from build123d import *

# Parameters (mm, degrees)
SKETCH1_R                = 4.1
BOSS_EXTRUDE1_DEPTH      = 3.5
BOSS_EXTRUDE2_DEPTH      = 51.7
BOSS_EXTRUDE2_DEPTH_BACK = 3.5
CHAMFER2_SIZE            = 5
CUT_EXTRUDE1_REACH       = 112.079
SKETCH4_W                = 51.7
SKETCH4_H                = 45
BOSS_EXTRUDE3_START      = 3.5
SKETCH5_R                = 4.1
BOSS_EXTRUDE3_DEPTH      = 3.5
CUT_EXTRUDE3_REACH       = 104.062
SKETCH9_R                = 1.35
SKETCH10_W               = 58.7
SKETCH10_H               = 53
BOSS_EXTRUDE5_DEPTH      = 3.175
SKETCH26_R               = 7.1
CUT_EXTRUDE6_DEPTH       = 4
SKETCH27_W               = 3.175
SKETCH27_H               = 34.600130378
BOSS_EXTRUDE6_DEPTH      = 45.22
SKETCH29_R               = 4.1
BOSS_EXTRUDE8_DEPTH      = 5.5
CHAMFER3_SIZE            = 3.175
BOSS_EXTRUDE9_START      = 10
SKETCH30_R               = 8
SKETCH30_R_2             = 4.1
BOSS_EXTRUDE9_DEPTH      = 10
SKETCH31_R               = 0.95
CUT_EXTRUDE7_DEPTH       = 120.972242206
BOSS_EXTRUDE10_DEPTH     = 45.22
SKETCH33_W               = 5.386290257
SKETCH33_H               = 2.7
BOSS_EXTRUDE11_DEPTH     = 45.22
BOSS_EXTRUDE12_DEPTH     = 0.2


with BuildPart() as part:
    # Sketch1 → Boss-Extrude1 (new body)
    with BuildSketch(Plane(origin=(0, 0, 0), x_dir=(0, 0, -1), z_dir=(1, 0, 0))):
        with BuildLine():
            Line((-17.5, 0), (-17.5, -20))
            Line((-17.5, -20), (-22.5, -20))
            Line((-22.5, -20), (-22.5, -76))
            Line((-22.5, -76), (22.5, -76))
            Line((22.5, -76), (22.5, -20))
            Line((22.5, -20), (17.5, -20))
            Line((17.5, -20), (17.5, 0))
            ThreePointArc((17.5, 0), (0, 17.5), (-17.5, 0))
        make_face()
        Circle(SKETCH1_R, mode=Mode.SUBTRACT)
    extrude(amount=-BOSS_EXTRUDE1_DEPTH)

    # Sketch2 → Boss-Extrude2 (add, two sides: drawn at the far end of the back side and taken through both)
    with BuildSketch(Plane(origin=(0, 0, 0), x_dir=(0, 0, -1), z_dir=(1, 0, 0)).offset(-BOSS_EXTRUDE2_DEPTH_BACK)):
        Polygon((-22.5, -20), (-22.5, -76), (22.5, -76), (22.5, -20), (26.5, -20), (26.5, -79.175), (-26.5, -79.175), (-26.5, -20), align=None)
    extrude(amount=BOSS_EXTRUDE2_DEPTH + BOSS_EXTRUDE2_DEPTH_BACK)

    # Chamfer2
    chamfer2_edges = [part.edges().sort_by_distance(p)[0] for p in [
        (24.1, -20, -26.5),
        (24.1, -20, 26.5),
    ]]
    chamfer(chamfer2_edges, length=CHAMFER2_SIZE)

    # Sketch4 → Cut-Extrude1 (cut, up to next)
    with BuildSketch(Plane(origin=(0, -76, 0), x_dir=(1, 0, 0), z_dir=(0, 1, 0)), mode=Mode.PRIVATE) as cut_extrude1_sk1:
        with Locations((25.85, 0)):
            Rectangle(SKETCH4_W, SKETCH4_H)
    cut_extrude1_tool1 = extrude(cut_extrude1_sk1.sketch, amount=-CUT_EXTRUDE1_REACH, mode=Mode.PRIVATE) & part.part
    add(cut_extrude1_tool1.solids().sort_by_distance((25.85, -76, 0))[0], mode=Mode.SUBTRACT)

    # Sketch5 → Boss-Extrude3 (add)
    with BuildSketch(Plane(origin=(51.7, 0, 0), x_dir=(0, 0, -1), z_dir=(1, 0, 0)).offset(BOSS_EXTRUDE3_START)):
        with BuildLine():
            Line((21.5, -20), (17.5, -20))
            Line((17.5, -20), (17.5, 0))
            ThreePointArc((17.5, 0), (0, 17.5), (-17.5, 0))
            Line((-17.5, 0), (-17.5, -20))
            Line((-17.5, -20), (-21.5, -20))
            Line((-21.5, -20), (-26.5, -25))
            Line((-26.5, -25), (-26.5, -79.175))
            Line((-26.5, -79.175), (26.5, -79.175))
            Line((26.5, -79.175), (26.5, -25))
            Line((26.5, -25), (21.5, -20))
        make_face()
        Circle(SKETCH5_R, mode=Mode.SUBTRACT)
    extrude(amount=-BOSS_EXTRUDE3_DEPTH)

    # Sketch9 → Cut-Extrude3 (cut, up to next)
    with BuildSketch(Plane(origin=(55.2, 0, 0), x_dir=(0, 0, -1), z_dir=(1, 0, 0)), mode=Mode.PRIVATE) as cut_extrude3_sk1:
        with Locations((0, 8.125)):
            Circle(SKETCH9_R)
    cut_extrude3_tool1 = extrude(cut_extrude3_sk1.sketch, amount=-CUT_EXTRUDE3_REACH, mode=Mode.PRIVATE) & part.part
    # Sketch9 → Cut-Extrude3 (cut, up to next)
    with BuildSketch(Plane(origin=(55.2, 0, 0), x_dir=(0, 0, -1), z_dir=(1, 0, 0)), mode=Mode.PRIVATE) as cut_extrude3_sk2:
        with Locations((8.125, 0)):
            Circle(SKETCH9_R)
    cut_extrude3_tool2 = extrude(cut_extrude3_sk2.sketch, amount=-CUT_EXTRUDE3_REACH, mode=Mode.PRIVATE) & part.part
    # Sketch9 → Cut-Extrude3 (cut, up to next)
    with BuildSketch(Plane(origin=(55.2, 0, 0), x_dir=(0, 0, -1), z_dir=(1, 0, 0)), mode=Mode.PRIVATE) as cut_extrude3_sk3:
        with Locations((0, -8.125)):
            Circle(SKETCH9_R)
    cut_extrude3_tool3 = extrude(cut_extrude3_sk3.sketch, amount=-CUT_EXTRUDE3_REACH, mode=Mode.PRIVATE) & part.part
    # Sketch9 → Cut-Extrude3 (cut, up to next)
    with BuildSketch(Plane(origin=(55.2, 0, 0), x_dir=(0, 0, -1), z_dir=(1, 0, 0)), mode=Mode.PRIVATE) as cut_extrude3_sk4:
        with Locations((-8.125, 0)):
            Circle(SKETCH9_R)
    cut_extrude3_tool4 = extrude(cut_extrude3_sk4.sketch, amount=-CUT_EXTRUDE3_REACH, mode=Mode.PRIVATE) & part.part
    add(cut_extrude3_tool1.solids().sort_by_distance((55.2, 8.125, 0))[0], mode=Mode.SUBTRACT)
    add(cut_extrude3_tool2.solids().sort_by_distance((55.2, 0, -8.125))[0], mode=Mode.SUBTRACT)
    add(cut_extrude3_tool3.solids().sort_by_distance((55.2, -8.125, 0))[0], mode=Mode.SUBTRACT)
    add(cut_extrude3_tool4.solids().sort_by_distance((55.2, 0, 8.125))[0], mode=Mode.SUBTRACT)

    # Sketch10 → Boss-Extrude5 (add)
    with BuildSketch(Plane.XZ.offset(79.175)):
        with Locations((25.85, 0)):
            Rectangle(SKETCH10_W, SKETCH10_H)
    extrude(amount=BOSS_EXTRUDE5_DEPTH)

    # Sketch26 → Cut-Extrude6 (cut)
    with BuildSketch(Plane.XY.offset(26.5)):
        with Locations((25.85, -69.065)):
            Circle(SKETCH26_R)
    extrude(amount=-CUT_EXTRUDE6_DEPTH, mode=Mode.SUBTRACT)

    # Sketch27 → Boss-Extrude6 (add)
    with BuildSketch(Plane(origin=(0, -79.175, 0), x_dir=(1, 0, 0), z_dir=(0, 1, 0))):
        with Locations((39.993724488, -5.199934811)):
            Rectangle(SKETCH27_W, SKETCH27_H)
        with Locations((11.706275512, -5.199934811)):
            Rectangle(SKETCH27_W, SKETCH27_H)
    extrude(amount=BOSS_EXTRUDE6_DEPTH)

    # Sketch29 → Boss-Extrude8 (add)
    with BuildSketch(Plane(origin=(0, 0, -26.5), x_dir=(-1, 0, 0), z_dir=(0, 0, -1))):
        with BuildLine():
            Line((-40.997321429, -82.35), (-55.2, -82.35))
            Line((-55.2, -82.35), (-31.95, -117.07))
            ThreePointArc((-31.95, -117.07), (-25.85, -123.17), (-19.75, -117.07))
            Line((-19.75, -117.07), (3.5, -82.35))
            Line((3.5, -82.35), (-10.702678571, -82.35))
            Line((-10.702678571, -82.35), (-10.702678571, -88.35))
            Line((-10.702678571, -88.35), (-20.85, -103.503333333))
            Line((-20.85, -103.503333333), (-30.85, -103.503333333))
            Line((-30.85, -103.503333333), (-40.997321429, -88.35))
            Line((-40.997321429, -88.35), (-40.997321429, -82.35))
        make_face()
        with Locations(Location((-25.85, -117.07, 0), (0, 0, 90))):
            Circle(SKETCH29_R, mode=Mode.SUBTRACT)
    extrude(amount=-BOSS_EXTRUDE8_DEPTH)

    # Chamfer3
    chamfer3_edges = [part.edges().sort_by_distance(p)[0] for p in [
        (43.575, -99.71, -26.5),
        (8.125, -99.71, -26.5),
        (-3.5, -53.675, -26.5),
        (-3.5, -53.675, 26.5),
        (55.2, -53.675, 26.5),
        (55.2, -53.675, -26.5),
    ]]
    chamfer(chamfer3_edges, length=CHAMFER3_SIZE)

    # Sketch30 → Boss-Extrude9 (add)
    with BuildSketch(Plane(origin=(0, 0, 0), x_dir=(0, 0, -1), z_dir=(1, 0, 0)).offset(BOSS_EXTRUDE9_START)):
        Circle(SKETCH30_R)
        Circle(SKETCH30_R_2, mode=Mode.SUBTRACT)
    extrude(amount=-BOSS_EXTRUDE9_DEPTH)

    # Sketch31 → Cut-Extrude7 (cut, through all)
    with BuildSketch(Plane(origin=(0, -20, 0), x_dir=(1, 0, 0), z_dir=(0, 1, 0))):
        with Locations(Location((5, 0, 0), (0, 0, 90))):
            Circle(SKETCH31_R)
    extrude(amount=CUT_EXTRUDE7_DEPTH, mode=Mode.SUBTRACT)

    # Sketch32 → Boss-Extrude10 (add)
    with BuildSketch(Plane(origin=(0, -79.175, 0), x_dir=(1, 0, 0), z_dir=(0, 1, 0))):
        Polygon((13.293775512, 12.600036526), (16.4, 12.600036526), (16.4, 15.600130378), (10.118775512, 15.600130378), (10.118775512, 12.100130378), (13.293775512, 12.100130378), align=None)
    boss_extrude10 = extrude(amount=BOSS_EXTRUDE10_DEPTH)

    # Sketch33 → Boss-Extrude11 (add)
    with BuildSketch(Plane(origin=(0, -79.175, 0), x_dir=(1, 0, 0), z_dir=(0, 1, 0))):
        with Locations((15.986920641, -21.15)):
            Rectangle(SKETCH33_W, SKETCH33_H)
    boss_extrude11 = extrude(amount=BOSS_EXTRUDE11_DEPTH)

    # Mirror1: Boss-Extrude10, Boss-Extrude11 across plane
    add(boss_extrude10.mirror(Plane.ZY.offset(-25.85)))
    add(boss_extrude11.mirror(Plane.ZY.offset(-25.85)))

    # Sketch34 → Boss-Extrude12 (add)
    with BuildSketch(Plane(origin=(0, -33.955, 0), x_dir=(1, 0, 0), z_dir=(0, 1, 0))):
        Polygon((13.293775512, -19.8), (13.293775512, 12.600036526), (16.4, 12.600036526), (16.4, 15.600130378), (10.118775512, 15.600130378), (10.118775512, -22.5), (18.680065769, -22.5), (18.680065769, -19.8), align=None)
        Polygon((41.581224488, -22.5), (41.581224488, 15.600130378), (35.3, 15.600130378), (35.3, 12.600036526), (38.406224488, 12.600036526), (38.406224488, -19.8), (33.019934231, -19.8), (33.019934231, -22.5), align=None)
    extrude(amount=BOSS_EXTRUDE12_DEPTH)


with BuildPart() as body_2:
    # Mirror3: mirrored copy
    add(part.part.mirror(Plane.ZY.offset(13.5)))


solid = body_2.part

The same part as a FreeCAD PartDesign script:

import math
import FreeCAD as App
import Part
import Sketcher
Q = App.Units.Quantity


def edges_at(feature, points):
    """Names of the edges that pass closest to the given points."""
    edges = feature.Shape.Edges
    near = lambda p: min(range(len(edges)), key=lambda i: edges[i].distToShape(Part.Vertex(*p))[0])
    return sorted({f"Edge{near(p) + 1}" for p in points})

doc = App.newDocument("Part")
body = doc.addObject("PartDesign::Body", "Body")

# Sketch on YZ plane
sketch1 = doc.addObject("Sketcher::SketchObject", "Sketch")
body.addObject(sketch1)
sketch1.AttachmentSupport = (doc.YZ_Plane, [""])
sketch1.MapMode = "FlatFace"
sketch1.addGeometry([
    Part.LineSegment(App.Vector(0, 17.5, 0), App.Vector(-20, 17.5, 0)),  # 0
    Part.LineSegment(App.Vector(-20, 17.5, 0), App.Vector(-20, 22.5, 0)),  # 1
    Part.LineSegment(App.Vector(-20, 22.5, 0), App.Vector(-76, 22.5, 0)),  # 2
    Part.LineSegment(App.Vector(-76, 22.5, 0), App.Vector(-76, -22.5, 0)),  # 3
    Part.LineSegment(App.Vector(-76, -22.5, 0), App.Vector(-20, -22.5, 0)),  # 4
    Part.LineSegment(App.Vector(-20, -22.5, 0), App.Vector(-20, -17.5, 0)),  # 5
    Part.LineSegment(App.Vector(-20, -17.5, 0), App.Vector(0, -17.5, 0)),  # 6
    Part.ArcOfCircle(Part.Circle(App.Vector(0, 0, 0), App.Vector(0, 0, 1), 17.5), math.radians(-90), math.radians(90)),  # 7
    Part.Circle(App.Vector(0, 0, 0), App.Vector(0, 0, 1), 4.1),  # 8
], False)
sketch1.addConstraint([
    Sketcher.Constraint("Coincident", 0, 2, 1, 1),
    Sketcher.Constraint("Coincident", 1, 2, 2, 1),
    Sketcher.Constraint("Coincident", 2, 2, 3, 1),
    Sketcher.Constraint("Coincident", 3, 2, 4, 1),
    Sketcher.Constraint("Coincident", 4, 2, 5, 1),
    Sketcher.Constraint("Coincident", 5, 2, 6, 1),
    Sketcher.Constraint("Tangent", 6, 2, 7, 1),
    Sketcher.Constraint("Tangent", 7, 2, 0, 1),
    Sketcher.Constraint("Horizontal", 0),
    Sketcher.Constraint("Vertical", 1),
    Sketcher.Constraint("Horizontal", 2),
    Sketcher.Constraint("Vertical", 3),
    Sketcher.Constraint("Horizontal", 4),
    Sketcher.Constraint("Vertical", 5),
    Sketcher.Constraint("Horizontal", 6),
    Sketcher.Constraint("Coincident", 7, 3, -1, 1),
    Sketcher.Constraint("Coincident", 8, 3, -1, 1),
    Sketcher.Constraint("Symmetric", 1, 2, 4, 2, -1),
    Sketcher.Constraint("Diameter", 8, Q("8.2 mm")),
    Sketcher.Constraint("Radius", 7, Q("17.5 mm")),
    Sketcher.Constraint("DistanceX", 0, 2, 0, 1, Q("20 mm")),
    Sketcher.Constraint("DistanceX", 2, 2, 2, 1, Q("56 mm")),
    Sketcher.Constraint("DistanceY", 1, 1, 1, 2, Q("5 mm")),
])
pad1 = doc.addObject("PartDesign::Pad", "Pad")
body.addObject(pad1)
pad1.Profile = sketch1
pad1.Length = 3.5
pad1.Reversed = True

# Sketch on YZ plane
sketch2 = doc.addObject("Sketcher::SketchObject", "Sketch001")
body.addObject(sketch2)
sketch2.AttachmentSupport = (doc.YZ_Plane, [""])
sketch2.MapMode = "FlatFace"
sketch2.addGeometry([
    Part.LineSegment(App.Vector(-76, 22.5, 0), App.Vector(-20, 22.5, 0)),  # 0
    Part.LineSegment(App.Vector(-20, 22.5, 0), App.Vector(-20, 26.5, 0)),  # 1
    Part.LineSegment(App.Vector(-20, 26.5, 0), App.Vector(-79.2, 26.5, 0)),  # 2
    Part.LineSegment(App.Vector(-79.2, 26.5, 0), App.Vector(-79.2, -26.5, 0)),  # 3
    Part.LineSegment(App.Vector(-79.2, -26.5, 0), App.Vector(-20, -26.5, 0)),  # 4
    Part.LineSegment(App.Vector(-20, -26.5, 0), App.Vector(-20, -22.5, 0)),  # 5
    Part.LineSegment(App.Vector(-20, -22.5, 0), App.Vector(-76, -22.5, 0)),  # 6
    Part.LineSegment(App.Vector(-76, -22.5, 0), App.Vector(-76, 22.5, 0)),  # 7
], False)
sketch2.addConstraint([
    Sketcher.Constraint("Coincident", 0, 2, 1, 1),
    Sketcher.Constraint("Coincident", 1, 2, 2, 1),
    Sketcher.Constraint("Coincident", 2, 2, 3, 1),
    Sketcher.Constraint("Coincident", 3, 2, 4, 1),
    Sketcher.Constraint("Coincident", 4, 2, 5, 1),
    Sketcher.Constraint("Coincident", 5, 2, 6, 1),
    Sketcher.Constraint("Coincident", 6, 2, 7, 1),
    Sketcher.Constraint("Coincident", 7, 2, 0, 1),
    Sketcher.Constraint("Horizontal", 0),
    Sketcher.Constraint("Vertical", 1),
    Sketcher.Constraint("Horizontal", 2),
    Sketcher.Constraint("Vertical", 3),
    Sketcher.Constraint("Horizontal", 4),
    Sketcher.Constraint("Vertical", 5),
    Sketcher.Constraint("Horizontal", 6),
    Sketcher.Constraint("Vertical", 7),
    Sketcher.Constraint("Symmetric", 1, 2, 4, 2, -1),
    Sketcher.Constraint("Equal", 1, 5),
    Sketcher.Constraint("DistanceX", 0, 1, 0, 2, Q("56 mm")),
    Sketcher.Constraint("DistanceY", 1, 1, 1, 2, Q("4 mm")),
    Sketcher.Constraint("DistanceY", 3, 2, 3, 1, Q("53 mm")),
    Sketcher.Constraint("DistanceX", 0, 2, -1, 1, Q("20 mm")),
    Sketcher.Constraint("DistanceX", 2, 2, 2, 1, Q("59.175 mm")),
])
pad2 = doc.addObject("PartDesign::Pad", "Pad001")
body.addObject(pad2)
pad2.Profile = sketch2
pad2.Type = "TwoLengths"
pad2.Length = 51.7
pad2.Length2 = 3.5
doc.recompute()

chamfer = doc.addObject("PartDesign::Chamfer", "Chamfer")
body.addObject(chamfer)
chamfer.Base = (pad2, edges_at(pad2, [(24.1, -20, -26.5), (24.1, -20, 26.5)]))
chamfer.Size = 5

# Sketch on XZ plane
sketch3 = doc.addObject("Sketcher::SketchObject", "Sketch002")
body.addObject(sketch3)
sketch3.AttachmentSupport = (doc.XZ_Plane, [""])
sketch3.MapMode = "FlatFace"
sketch3.AttachmentOffset = App.Placement(App.Vector(0, 0, 76), App.Rotation())
sketch3.addGeometry([
    Part.LineSegment(App.Vector(0, -22, 0), App.Vector(0, 22, 0)),
    Part.LineSegment(App.Vector(0, 22, 0), App.Vector(52, 22, 0)),
    Part.LineSegment(App.Vector(52, 22, 0), App.Vector(52, -22, 0)),
    Part.LineSegment(App.Vector(52, -22, 0), App.Vector(0, -22, 0)),
], False)
sketch3.addConstraint([
    Sketcher.Constraint("Coincident", 0, 2, 1, 1),
    Sketcher.Constraint("Coincident", 1, 2, 2, 1),
    Sketcher.Constraint("Coincident", 2, 2, 3, 1),
    Sketcher.Constraint("Coincident", 3, 2, 0, 1),
    Sketcher.Constraint("Vertical", 0),
    Sketcher.Constraint("Horizontal", 1),
    Sketcher.Constraint("Vertical", 2),
    Sketcher.Constraint("Horizontal", 3),
    Sketcher.Constraint("Symmetric", 0, 2, 3, 2, -1, 1),
    Sketcher.Constraint("DistanceY", 0, 1, 0, 2, Q("45 mm")),
    Sketcher.Constraint("DistanceX", 1, 1, 1, 2, Q("51.7 mm")),
])
pocket1 = doc.addObject("PartDesign::Pocket", "Pocket")
body.addObject(pocket1)
pocket1.Profile = sketch3
pocket1.Type = "UpToFirst"
pocket1.Reversed = True

# Sketch on YZ plane
sketch4 = doc.addObject("Sketcher::SketchObject", "Sketch003")
body.addObject(sketch4)
sketch4.AttachmentSupport = (doc.YZ_Plane, [""])
sketch4.MapMode = "FlatFace"
sketch4.AttachmentOffset = App.Placement(App.Vector(0, 0, 55.2), App.Rotation())
sketch4.addGeometry([
    Part.LineSegment(App.Vector(-20, -21.5, 0), App.Vector(-20, -17.5, 0)),  # 0
    Part.LineSegment(App.Vector(-20, -17.5, 0), App.Vector(0, -17.5, 0)),  # 1
    Part.ArcOfCircle(Part.Circle(App.Vector(0, 0, 0), App.Vector(0, 0, 1), 17.5), math.radians(-90), math.radians(90)),  # 2
    Part.LineSegment(App.Vector(0, 17.5, 0), App.Vector(-20, 17.5, 0)),  # 3
    Part.LineSegment(App.Vector(-20, 17.5, 0), App.Vector(-20, 21.5, 0)),  # 4
    Part.LineSegment(App.Vector(-20, 21.5, 0), App.Vector(-25, 26.5, 0)),  # 5
    Part.LineSegment(App.Vector(-25, 26.5, 0), App.Vector(-79.2, 26.5, 0)),  # 6
    Part.LineSegment(App.Vector(-79.2, 26.5, 0), App.Vector(-79.2, -26.5, 0)),  # 7
    Part.LineSegment(App.Vector(-79.2, -26.5, 0), App.Vector(-25, -26.5, 0)),  # 8
    Part.LineSegment(App.Vector(-25, -26.5, 0), App.Vector(-20, -21.5, 0)),  # 9
    Part.Circle(App.Vector(0, 0, 0), App.Vector(0, 0, 1), 4.1),  # 10
], False)
sketch4.addConstraint([
    Sketcher.Constraint("Coincident", 0, 2, 1, 1),
    Sketcher.Constraint("Tangent", 1, 2, 2, 1),
    Sketcher.Constraint("Tangent", 2, 2, 3, 1),
    Sketcher.Constraint("Coincident", 3, 2, 4, 1),
    Sketcher.Constraint("Coincident", 4, 2, 5, 1),
    Sketcher.Constraint("Coincident", 5, 2, 6, 1),
    Sketcher.Constraint("Coincident", 6, 2, 7, 1),
    Sketcher.Constraint("Coincident", 7, 2, 8, 1),
    Sketcher.Constraint("Coincident", 8, 2, 9, 1),
    Sketcher.Constraint("Coincident", 9, 2, 0, 1),
    Sketcher.Constraint("Vertical", 0),
    Sketcher.Constraint("Horizontal", 1),
    Sketcher.Constraint("Horizontal", 3),
    Sketcher.Constraint("Vertical", 4),
    Sketcher.Constraint("Horizontal", 6),
    Sketcher.Constraint("Vertical", 7),
    Sketcher.Constraint("Horizontal", 8),
    Sketcher.Constraint("Coincident", 2, 3, -1, 1),
    Sketcher.Constraint("Coincident", 10, 3, -1, 1),
    Sketcher.Constraint("Symmetric", 5, 2, 8, 2, -1),
    Sketcher.Constraint("Symmetric", 4, 2, 9, 2, -1),
    Sketcher.Constraint("Perpendicular", 5, 9),
    Sketcher.Constraint("Diameter", 10, Q("8.2 mm")),
    Sketcher.Constraint("Radius", 2, Q("17.5 mm")),
    Sketcher.Constraint("DistanceX", 1, 1, 1, 2, Q("20 mm")),
    Sketcher.Constraint("DistanceY", 0, 1, 0, 2, Q("4 mm")),
    Sketcher.Constraint("DistanceY", 7, 2, 7, 1, Q("53 mm")),
    Sketcher.Constraint("DistanceX", 6, 2, 6, 1, Q("54.175 mm")),
])
pad3 = doc.addObject("PartDesign::Pad", "Pad002")
body.addObject(pad3)
pad3.Profile = sketch4
pad3.Length = 3.5
pad3.Reversed = True

# Sketch on YZ plane
sketch5 = doc.addObject("Sketcher::SketchObject", "Sketch004")
body.addObject(sketch5)
sketch5.AttachmentSupport = (doc.YZ_Plane, [""])
sketch5.MapMode = "FlatFace"
sketch5.AttachmentOffset = App.Placement(App.Vector(0, 0, 55.2), App.Rotation())
sketch5.addGeometry(Part.Circle(App.Vector(8.1, 0, 0), App.Vector(0, 0, 1), 1.4), False)
sketch5.addConstraint([
    Sketcher.Constraint("PointOnObject", 0, 3, -1),
    Sketcher.Constraint("Diameter", 0, Q("2.7 mm")),
    Sketcher.Constraint("DistanceX", -1, 1, 0, 3, Q("8.125 mm")),
])
pocket2 = doc.addObject("PartDesign::Pocket", "Pocket001")
body.addObject(pocket2)
pocket2.Profile = sketch5
pocket2.Type = "UpToFirst"

# Sketch on YZ plane
sketch6 = doc.addObject("Sketcher::SketchObject", "Sketch005")
body.addObject(sketch6)
sketch6.AttachmentSupport = (doc.YZ_Plane, [""])
sketch6.MapMode = "FlatFace"
sketch6.AttachmentOffset = App.Placement(App.Vector(0, 0, 55.2), App.Rotation())
sketch6.addGeometry(Part.Circle(App.Vector(0, -8.1, 0), App.Vector(0, 0, 1), 1.4), False)
sketch6.addConstraint([
    Sketcher.Constraint("PointOnObject", 0, 3, -2),
    Sketcher.Constraint("Diameter", 0, Q("2.7 mm")),
    Sketcher.Constraint("DistanceY", 0, 3, -1, 1, Q("8.125 mm")),
])
pocket3 = doc.addObject("PartDesign::Pocket", "Pocket002")
body.addObject(pocket3)
pocket3.Profile = sketch6
pocket3.Type = "UpToFirst"

# Sketch on YZ plane
sketch7 = doc.addObject("Sketcher::SketchObject", "Sketch006")
body.addObject(sketch7)
sketch7.AttachmentSupport = (doc.YZ_Plane, [""])
sketch7.MapMode = "FlatFace"
sketch7.AttachmentOffset = App.Placement(App.Vector(0, 0, 55.2), App.Rotation())
sketch7.addGeometry(Part.Circle(App.Vector(-8.1, 0, 0), App.Vector(0, 0, 1), 1.4), False)
sketch7.addConstraint([
    Sketcher.Constraint("PointOnObject", 0, 3, -1),
    Sketcher.Constraint("Diameter", 0, Q("2.7 mm")),
    Sketcher.Constraint("DistanceX", 0, 3, -1, 1, Q("8.125 mm")),
])
pocket4 = doc.addObject("PartDesign::Pocket", "Pocket003")
body.addObject(pocket4)
pocket4.Profile = sketch7
pocket4.Type = "UpToFirst"

# Sketch on YZ plane
sketch8 = doc.addObject("Sketcher::SketchObject", "Sketch007")
body.addObject(sketch8)
sketch8.AttachmentSupport = (doc.YZ_Plane, [""])
sketch8.MapMode = "FlatFace"
sketch8.AttachmentOffset = App.Placement(App.Vector(0, 0, 55.2), App.Rotation())
sketch8.addGeometry(Part.Circle(App.Vector(0, 8.1, 0), App.Vector(0, 0, 1), 1.4), False)
sketch8.addConstraint([
    Sketcher.Constraint("PointOnObject", 0, 3, -2),
    Sketcher.Constraint("Diameter", 0, Q("2.7 mm")),
    Sketcher.Constraint("DistanceY", -1, 1, 0, 3, Q("8.125 mm")),
])
pocket5 = doc.addObject("PartDesign::Pocket", "Pocket004")
body.addObject(pocket5)
pocket5.Profile = sketch8
pocket5.Type = "UpToFirst"

# Sketch on XZ plane
sketch9 = doc.addObject("Sketcher::SketchObject", "Sketch008")
body.addObject(sketch9)
sketch9.AttachmentSupport = (doc.XZ_Plane, [""])
sketch9.MapMode = "FlatFace"
sketch9.AttachmentOffset = App.Placement(App.Vector(0, 0, 79.175), App.Rotation())
sketch9.addGeometry([
    Part.LineSegment(App.Vector(-4, 26, 0), App.Vector(-4, -26, 0)),
    Part.LineSegment(App.Vector(-4, -26, 0), App.Vector(55, -26, 0)),
    Part.LineSegment(App.Vector(55, -26, 0), App.Vector(55, 26, 0)),
    Part.LineSegment(App.Vector(55, 26, 0), App.Vector(-4, 26, 0)),
], False)
sketch9.addConstraint([
    Sketcher.Constraint("Coincident", 0, 2, 1, 1),
    Sketcher.Constraint("Coincident", 1, 2, 2, 1),
    Sketcher.Constraint("Coincident", 2, 2, 3, 1),
    Sketcher.Constraint("Coincident", 3, 2, 0, 1),
    Sketcher.Constraint("Vertical", 0),
    Sketcher.Constraint("Horizontal", 1),
    Sketcher.Constraint("Vertical", 2),
    Sketcher.Constraint("Horizontal", 3),
    Sketcher.Constraint("DistanceY", 0, 2, 0, 1, Q("53 mm")),
    Sketcher.Constraint("DistanceX", 1, 1, 1, 2, Q("58.7 mm")),
    Sketcher.Constraint("DistanceX", 0, 2, -1, 1, Q("3.5 mm")),
    Sketcher.Constraint("DistanceY", 0, 2, -1, 1, Q("26.5 mm")),
])
pad4 = doc.addObject("PartDesign::Pad", "Pad003")
body.addObject(pad4)
pad4.Profile = sketch9
pad4.Length = 3.175

# Sketch on XY plane
sketch10 = doc.addObject("Sketcher::SketchObject", "Sketch009")
body.addObject(sketch10)
sketch10.AttachmentSupport = (doc.XY_Plane, [""])
sketch10.MapMode = "FlatFace"
sketch10.AttachmentOffset = App.Placement(App.Vector(0, 0, 26.5), App.Rotation())
sketch10.addGeometry(Part.Circle(App.Vector(26, -69, 0), App.Vector(0, 0, 1), 7), False)
sketch10.addConstraint([
    Sketcher.Constraint("Diameter", 0, Q("14.2 mm")),
    Sketcher.Constraint("DistanceX", -1, 1, 0, 3, Q("25.85 mm")),
    Sketcher.Constraint("DistanceY", 0, 3, -1, 1, Q("69.065 mm")),
])
pocket6 = doc.addObject("PartDesign::Pocket", "Pocket005")
body.addObject(pocket6)
pocket6.Profile = sketch10
pocket6.Length = 4

# Sketch on XZ plane
sketch11 = doc.addObject("Sketcher::SketchObject", "Sketch010")
body.addObject(sketch11)
sketch11.AttachmentSupport = (doc.XZ_Plane, [""])
sketch11.MapMode = "FlatFace"
sketch11.AttachmentOffset = App.Placement(App.Vector(0, 0, 79.175), App.Rotation())
sketch11.addGeometry([
    Part.LineSegment(App.Vector(38.4, -12.1, 0), App.Vector(38.4, 22.5, 0)),  # 0
    Part.LineSegment(App.Vector(38.4, 22.5, 0), App.Vector(41.6, 22.5, 0)),  # 1
    Part.LineSegment(App.Vector(41.6, 22.5, 0), App.Vector(41.6, -12.1, 0)),  # 2
    Part.LineSegment(App.Vector(41.6, -12.1, 0), App.Vector(38.4, -12.1, 0)),  # 3
    Part.LineSegment(App.Vector(10.1, -12.1, 0), App.Vector(10.1, 22.5, 0)),  # 4
    Part.LineSegment(App.Vector(10.1, 22.5, 0), App.Vector(13.3, 22.5, 0)),  # 5
    Part.LineSegment(App.Vector(13.3, 22.5, 0), App.Vector(13.3, -12.1, 0)),  # 6
    Part.LineSegment(App.Vector(13.3, -12.1, 0), App.Vector(10.1, -12.1, 0)),  # 7
], False)
sketch11.addConstraint([
    Sketcher.Constraint("Coincident", 0, 2, 1, 1),
    Sketcher.Constraint("Coincident", 1, 2, 2, 1),
    Sketcher.Constraint("Coincident", 2, 2, 3, 1),
    Sketcher.Constraint("Coincident", 3, 2, 0, 1),
    Sketcher.Constraint("Coincident", 4, 2, 5, 1),
    Sketcher.Constraint("Coincident", 5, 2, 6, 1),
    Sketcher.Constraint("Coincident", 6, 2, 7, 1),
    Sketcher.Constraint("Coincident", 7, 2, 4, 1),
    Sketcher.Constraint("Vertical", 0),
    Sketcher.Constraint("Horizontal", 1),
    Sketcher.Constraint("Vertical", 2),
    Sketcher.Constraint("Horizontal", 3),
    Sketcher.Constraint("Vertical", 4),
    Sketcher.Constraint("Horizontal", 5),
    Sketcher.Constraint("Vertical", 6),
    Sketcher.Constraint("Horizontal", 7),
    Sketcher.Constraint("Horizontal", 1, 2, 4, 2),
    Sketcher.Constraint("Horizontal", 3, 2, 6, 2),
    Sketcher.Constraint("Equal", 3, 5),
    Sketcher.Constraint("DistanceY", -1, 1, 0, 2, Q("22.5 mm")),
    Sketcher.Constraint("DistanceX", 1, 1, 1, 2, Q("3.175 mm")),
    Sketcher.Constraint("DistanceY", 0, 1, 0, 2, Q("34.60013 mm")),
    Sketcher.Constraint("DistanceX", 4, 2, 0, 2, Q("28.287449 mm")),
    Sketcher.Constraint("DistanceX", -1, 1, 0, 2, Q("38.406224 mm")),
])
pad5 = doc.addObject("PartDesign::Pad", "Pad004")
body.addObject(pad5)
pad5.Profile = sketch11
pad5.Length = 45.22
pad5.Reversed = True

# Sketch on XY plane
sketch12 = doc.addObject("Sketcher::SketchObject", "Sketch011")
body.addObject(sketch12)
sketch12.AttachmentSupport = (doc.XY_Plane, [""])
sketch12.MapMode = "FlatFace"
sketch12.AttachmentOffset = App.Placement(App.Vector(0, 0, -26.5), App.Rotation())
sketch12.addGeometry([
    Part.LineSegment(App.Vector(41, -82.3, 0), App.Vector(55.2, -82.3, 0)),  # 0
    Part.LineSegment(App.Vector(55.2, -82.3, 0), App.Vector(31.9, -117.1, 0)),  # 1
    Part.ArcOfCircle(Part.Circle(App.Vector(25.9, -117.1, 0), App.Vector(0, 0, 1), 6.1), math.radians(180), math.radians(360)),  # 2
    Part.LineSegment(App.Vector(19.8, -117.1, 0), App.Vector(-3.5, -82.3, 0)),  # 3
    Part.LineSegment(App.Vector(-3.5, -82.3, 0), App.Vector(10.7, -82.3, 0)),  # 4
    Part.LineSegment(App.Vector(10.7, -82.3, 0), App.Vector(10.7, -88.3, 0)),  # 5
    Part.LineSegment(App.Vector(10.7, -88.3, 0), App.Vector(20.9, -103.5, 0)),  # 6
    Part.LineSegment(App.Vector(20.9, -103.5, 0), App.Vector(30.9, -103.5, 0)),  # 7
    Part.LineSegment(App.Vector(30.9, -103.5, 0), App.Vector(41, -88.3, 0)),  # 8
    Part.LineSegment(App.Vector(41, -88.3, 0), App.Vector(41, -82.3, 0)),  # 9
    Part.Circle(App.Vector(25.9, -117.1, 0), App.Vector(0, 0, 1), 4.1),  # 10
], False)
sketch12.addConstraint([
    Sketcher.Constraint("Coincident", 0, 2, 1, 1),
    Sketcher.Constraint("Coincident", 1, 2, 2, 2),
    Sketcher.Constraint("Coincident", 2, 1, 3, 1),
    Sketcher.Constraint("Coincident", 3, 2, 4, 1),
    Sketcher.Constraint("Coincident", 4, 2, 5, 1),
    Sketcher.Constraint("Coincident", 5, 2, 6, 1),
    Sketcher.Constraint("Coincident", 6, 2, 7, 1),
    Sketcher.Constraint("Coincident", 7, 2, 8, 1),
    Sketcher.Constraint("Coincident", 8, 2, 9, 1),
    Sketcher.Constraint("Coincident", 9, 2, 0, 1),
    Sketcher.Constraint("Horizontal", 0),
    Sketcher.Constraint("Horizontal", 4),
    Sketcher.Constraint("Vertical", 5),
    Sketcher.Constraint("Horizontal", 7),
    Sketcher.Constraint("Vertical", 9),
    Sketcher.Constraint("Coincident", 10, 3, 2, 3),
    Sketcher.Constraint("Parallel", 3, 6),
    Sketcher.Constraint("Parallel", 1, 8),
    Sketcher.Constraint("Horizontal", 10, 3, 1, 2),
    Sketcher.Constraint("Horizontal", 1, 2, 2, 1),
    Sketcher.Constraint("Horizontal", 0, 2, 3, 2),
    Sketcher.Constraint("Horizontal", 5, 2, 8, 2),
    Sketcher.Constraint("Equal", 0, 4),
    Sketcher.Constraint("Equal", 1, 3),
    Sketcher.Constraint("Diameter", 10, Q("8.2 mm")),
    Sketcher.Constraint("Radius", 2, Q("6.1 mm")),
    Sketcher.Constraint("DistanceX", 7, 1, 7, 2, Q("10 mm")),
    Sketcher.Constraint("DistanceY", 5, 2, 5, 1, Q("6 mm")),
    Sketcher.Constraint("DistanceX", -1, 1, 0, 2, Q("55.2 mm")),
    Sketcher.Constraint("DistanceX", 3, 2, -1, 1, Q("3.5 mm")),
    Sketcher.Constraint("DistanceY", 2, 3, -1, 1, Q("117.07 mm")),
    Sketcher.Constraint("DistanceY", 0, 2, -1, 1, Q("82.35 mm")),
    Sketcher.Constraint("DistanceX", 0, 1, 0, 2, Q("14.202679 mm")),
])
pad6 = doc.addObject("PartDesign::Pad", "Pad005")
body.addObject(pad6)
pad6.Profile = sketch12
pad6.Length = 5.5
doc.recompute()

chamfer2 = doc.addObject("PartDesign::Chamfer", "Chamfer001")
body.addObject(chamfer2)
chamfer2.Base = (pad6, edges_at(pad6, [
    (43.575, -99.71, -26.5),
    (8.125, -99.71, -26.5),
    (-3.5, -53.675, -26.5),
    (-3.5, -53.675, 26.5),
    (55.2, -53.675, 26.5),
    (55.2, -53.675, -26.5),
]))
chamfer2.Size = 3.175

# Sketch on YZ plane
sketch13 = doc.addObject("Sketcher::SketchObject", "Sketch012")
body.addObject(sketch13)
sketch13.AttachmentSupport = (doc.YZ_Plane, [""])
sketch13.MapMode = "FlatFace"
sketch13.AttachmentOffset = App.Placement(App.Vector(0, 0, 10), App.Rotation())
sketch13.addGeometry([
    Part.Circle(App.Vector(0, 0, 0), App.Vector(0, 0, 1), 8),
    Part.Circle(App.Vector(0, 0, 0), App.Vector(0, 0, 1), 4.1),
], False)
sketch13.addConstraint([
    Sketcher.Constraint("Coincident", 0, 3, -1, 1),
    Sketcher.Constraint("Coincident", 1, 3, -1, 1),
    Sketcher.Constraint("Diameter", 0, Q("16 mm")),
    Sketcher.Constraint("Diameter", 1, Q("8.2 mm")),
])
pad7 = doc.addObject("PartDesign::Pad", "Pad006")
body.addObject(pad7)
pad7.Profile = sketch13
pad7.Length = 10
pad7.Reversed = True

# Sketch on XZ plane
sketch14 = doc.addObject("Sketcher::SketchObject", "Sketch013")
body.addObject(sketch14)
sketch14.AttachmentSupport = (doc.XZ_Plane, [""])
sketch14.MapMode = "FlatFace"
sketch14.AttachmentOffset = App.Placement(App.Vector(0, 0, 20), App.Rotation())
sketch14.addGeometry(Part.Circle(App.Vector(5, 0, 0), App.Vector(0, 0, 1), 0.9), False)
sketch14.addConstraint([
    Sketcher.Constraint("PointOnObject", 0, 3, -1),
    Sketcher.Constraint("Diameter", 0, Q("1.9 mm")),
    Sketcher.Constraint("DistanceX", -1, 1, 0, 3, Q("5 mm")),
])
pocket7 = doc.addObject("PartDesign::Pocket", "Pocket006")
body.addObject(pocket7)
pocket7.Profile = sketch14
pocket7.Type = "ThroughAll"

# Sketch on XZ plane
sketch15 = doc.addObject("Sketcher::SketchObject", "Sketch014")
body.addObject(sketch15)
sketch15.AttachmentSupport = (doc.XZ_Plane, [""])
sketch15.MapMode = "FlatFace"
sketch15.AttachmentOffset = App.Placement(App.Vector(0, 0, 79.175), App.Rotation())
sketch15.addGeometry([
    Part.LineSegment(App.Vector(13.29, -12.6, 0), App.Vector(16.4, -12.6, 0)),  # 0
    Part.LineSegment(App.Vector(16.4, -12.6, 0), App.Vector(16.4, -15.6, 0)),  # 1
    Part.LineSegment(App.Vector(16.4, -15.6, 0), App.Vector(10.12, -15.6, 0)),  # 2
    Part.LineSegment(App.Vector(10.12, -15.6, 0), App.Vector(10.12, -12.1, 0)),  # 3
    Part.LineSegment(App.Vector(10.12, -12.1, 0), App.Vector(13.29, -12.1, 0)),  # 4
    Part.LineSegment(App.Vector(13.29, -12.1, 0), App.Vector(13.29, -12.6, 0)),  # 5
], False)
sketch15.addConstraint([
    Sketcher.Constraint("Coincident", 0, 2, 1, 1),
    Sketcher.Constraint("Coincident", 1, 2, 2, 1),
    Sketcher.Constraint("Coincident", 2, 2, 3, 1),
    Sketcher.Constraint("Coincident", 3, 2, 4, 1),
    Sketcher.Constraint("Coincident", 4, 2, 5, 1),
    Sketcher.Constraint("Coincident", 5, 2, 0, 1),
    Sketcher.Constraint("Horizontal", 0),
    Sketcher.Constraint("Vertical", 1),
    Sketcher.Constraint("Horizontal", 2),
    Sketcher.Constraint("Vertical", 3),
    Sketcher.Constraint("Horizontal", 4),
    Sketcher.Constraint("Vertical", 5),
    Sketcher.Constraint("DistanceY", 3, 1, 3, 2, Q("3.5 mm")),
    Sketcher.Constraint("DistanceX", -1, 1, 0, 2, Q("16.4 mm")),
    Sketcher.Constraint("DistanceX", 4, 1, 4, 2, Q("3.175 mm")),
    Sketcher.Constraint("DistanceX", 0, 1, 0, 2, Q("3.106224 mm")),
    Sketcher.Constraint("DistanceY", 1, 2, 1, 1, Q("3.000094 mm")),
    Sketcher.Constraint("DistanceY", 1, 2, -1, 1, Q("15.60013 mm")),
])
pad8 = doc.addObject("PartDesign::Pad", "Pad007")
body.addObject(pad8)
pad8.Profile = sketch15
pad8.Length = 45.22
pad8.Reversed = True

# Sketch on XZ plane
sketch16 = doc.addObject("Sketcher::SketchObject", "Sketch015")
body.addObject(sketch16)
sketch16.AttachmentSupport = (doc.XZ_Plane, [""])
sketch16.MapMode = "FlatFace"
sketch16.AttachmentOffset = App.Placement(App.Vector(0, 0, 79.175), App.Rotation())
sketch16.addGeometry([
    Part.LineSegment(App.Vector(13.3, 19.8, 0), App.Vector(13.3, 22.5, 0)),
    Part.LineSegment(App.Vector(13.3, 22.5, 0), App.Vector(18.7, 22.5, 0)),
    Part.LineSegment(App.Vector(18.7, 22.5, 0), App.Vector(18.7, 19.8, 0)),
    Part.LineSegment(App.Vector(18.7, 19.8, 0), App.Vector(13.3, 19.8, 0)),
], False)
sketch16.addConstraint([
    Sketcher.Constraint("Coincident", 0, 2, 1, 1),
    Sketcher.Constraint("Coincident", 1, 2, 2, 1),
    Sketcher.Constraint("Coincident", 2, 2, 3, 1),
    Sketcher.Constraint("Coincident", 3, 2, 0, 1),
    Sketcher.Constraint("Vertical", 0),
    Sketcher.Constraint("Horizontal", 1),
    Sketcher.Constraint("Vertical", 2),
    Sketcher.Constraint("Horizontal", 3),
    Sketcher.Constraint("DistanceY", 0, 1, 0, 2, Q("2.7 mm")),
    Sketcher.Constraint("DistanceY", -1, 1, 0, 2, Q("22.5 mm")),
    Sketcher.Constraint("DistanceX", 1, 1, 1, 2, Q("5.38629 mm")),
    Sketcher.Constraint("DistanceX", -1, 1, 0, 2, Q("13.293776 mm")),
])
pad9 = doc.addObject("PartDesign::Pad", "Pad008")
body.addObject(pad9)
pad9.Profile = sketch16
pad9.Length = 45.22
pad9.Reversed = True
doc.recompute()

datumplane = doc.addObject("PartDesign::Plane", "DatumPlane")
body.addObject(datumplane)
datumplane.AttachmentSupport = (doc.YZ_Plane, [""])
datumplane.MapMode = "FlatFace"
datumplane.AttachmentOffset = App.Placement(App.Vector(0, 0, 25.85), App.Rotation())
mirrored = doc.addObject("PartDesign::Mirrored", "Mirrored")
body.addObject(mirrored)
mirrored.Originals = [pad8, pad9]
mirrored.MirrorPlane = (datumplane, [""])
body.Tip = mirrored

# Sketch on XZ plane
sketch17 = doc.addObject("Sketcher::SketchObject", "Sketch016")
body.addObject(sketch17)
sketch17.AttachmentSupport = (doc.XZ_Plane, [""])
sketch17.MapMode = "FlatFace"
sketch17.AttachmentOffset = App.Placement(App.Vector(0, 0, 33.955), App.Rotation())
sketch17.addGeometry([
    Part.LineSegment(App.Vector(13.3, 19.8, 0), App.Vector(13.3, -12.6, 0)),  # 0
    Part.LineSegment(App.Vector(13.3, -12.6, 0), App.Vector(16.4, -12.6, 0)),  # 1
    Part.LineSegment(App.Vector(16.4, -12.6, 0), App.Vector(16.4, -15.6, 0)),  # 2
    Part.LineSegment(App.Vector(16.4, -15.6, 0), App.Vector(10.1, -15.6, 0)),  # 3
    Part.LineSegment(App.Vector(10.1, -15.6, 0), App.Vector(10.1, 22.5, 0)),  # 4
    Part.LineSegment(App.Vector(10.1, 22.5, 0), App.Vector(18.7, 22.5, 0)),  # 5
    Part.LineSegment(App.Vector(18.7, 22.5, 0), App.Vector(18.7, 19.8, 0)),  # 6
    Part.LineSegment(App.Vector(18.7, 19.8, 0), App.Vector(13.3, 19.8, 0)),  # 7
    Part.LineSegment(App.Vector(41.6, 22.5, 0), App.Vector(41.6, -15.6, 0)),  # 8
    Part.LineSegment(App.Vector(41.6, -15.6, 0), App.Vector(35.3, -15.6, 0)),  # 9
    Part.LineSegment(App.Vector(35.3, -15.6, 0), App.Vector(35.3, -12.6, 0)),  # 10
    Part.LineSegment(App.Vector(35.3, -12.6, 0), App.Vector(38.4, -12.6, 0)),  # 11
    Part.LineSegment(App.Vector(38.4, -12.6, 0), App.Vector(38.4, 19.8, 0)),  # 12
    Part.LineSegment(App.Vector(38.4, 19.8, 0), App.Vector(33, 19.8, 0)),  # 13
    Part.LineSegment(App.Vector(33, 19.8, 0), App.Vector(33, 22.5, 0)),  # 14
    Part.LineSegment(App.Vector(33, 22.5, 0), App.Vector(41.6, 22.5, 0)),  # 15
], False)
sketch17.addConstraint([
    Sketcher.Constraint("Coincident", 0, 2, 1, 1),
    Sketcher.Constraint("Coincident", 1, 2, 2, 1),
    Sketcher.Constraint("Coincident", 2, 2, 3, 1),
    Sketcher.Constraint("Coincident", 3, 2, 4, 1),
    Sketcher.Constraint("Coincident", 4, 2, 5, 1),
    Sketcher.Constraint("Coincident", 5, 2, 6, 1),
    Sketcher.Constraint("Coincident", 6, 2, 7, 1),
    Sketcher.Constraint("Coincident", 7, 2, 0, 1),
    Sketcher.Constraint("Coincident", 8, 2, 9, 1),
    Sketcher.Constraint("Coincident", 9, 2, 10, 1),
    Sketcher.Constraint("Coincident", 10, 2, 11, 1),
    Sketcher.Constraint("Coincident", 11, 2, 12, 1),
    Sketcher.Constraint("Coincident", 12, 2, 13, 1),
    Sketcher.Constraint("Coincident", 13, 2, 14, 1),
    Sketcher.Constraint("Coincident", 14, 2, 15, 1),
    Sketcher.Constraint("Coincident", 15, 2, 8, 1),
    Sketcher.Constraint("Vertical", 0),
    Sketcher.Constraint("Horizontal", 1),
    Sketcher.Constraint("Vertical", 2),
    Sketcher.Constraint("Horizontal", 3),
    Sketcher.Constraint("Vertical", 4),
    Sketcher.Constraint("Horizontal", 5),
    Sketcher.Constraint("Vertical", 6),
    Sketcher.Constraint("Horizontal", 7),
    Sketcher.Constraint("Vertical", 8),
    Sketcher.Constraint("Horizontal", 9),
    Sketcher.Constraint("Vertical", 10),
    Sketcher.Constraint("Horizontal", 11),
    Sketcher.Constraint("Vertical", 12),
    Sketcher.Constraint("Horizontal", 13),
    Sketcher.Constraint("Vertical", 14),
    Sketcher.Constraint("Horizontal", 15),
    Sketcher.Constraint("Horizontal", 3, 2, 8, 2),
    Sketcher.Constraint("Horizontal", 1, 2, 10, 2),
    Sketcher.Constraint("Horizontal", 7, 2, 12, 2),
    Sketcher.Constraint("Horizontal", 5, 2, 14, 2),
    Sketcher.Constraint("Equal", 3, 9),
    Sketcher.Constraint("Equal", 1, 11),
    Sketcher.Constraint("Equal", 7, 13),
    Sketcher.Constraint("DistanceY", 6, 2, 6, 1, Q("2.7 mm")),
    Sketcher.Constraint("DistanceX", -1, 1, 1, 2, Q("16.4 mm")),
    Sketcher.Constraint("DistanceY", -1, 1, 4, 2, Q("22.5 mm")),
    Sketcher.Constraint("DistanceX", -1, 1, 9, 2, Q("35.3 mm")),
    Sketcher.Constraint("DistanceX", 3, 2, 0, 2, Q("3.175 mm")),
    Sketcher.Constraint("DistanceX", 5, 1, 5, 2, Q("8.56129 mm")),
    Sketcher.Constraint("DistanceY", 4, 1, 4, 2, Q("38.10013 mm")),
    Sketcher.Constraint("DistanceX", 1, 1, 1, 2, Q("3.106224 mm")),
    Sketcher.Constraint("DistanceY", 0, 2, 0, 1, Q("32.400037 mm")),
])
pad10 = doc.addObject("PartDesign::Pad", "Pad009")
body.addObject(pad10)
pad10.Profile = sketch17
pad10.Length = 0.2
pad10.Reversed = True
body2 = doc.addObject("PartDesign::Body", "Body001")
doc.recompute()

mirroring = doc.addObject("Part::Mirroring", "Mirroring")
mirroring.Source = body
mirroring.Base = App.Vector(-13.5, 0, 0)
mirroring.Normal = App.Vector(-1, 0, 0)
body2.BaseFeature = mirroring
doc.recompute()
body.Visibility = False
mirroring.Visibility = False

doc.recompute()
